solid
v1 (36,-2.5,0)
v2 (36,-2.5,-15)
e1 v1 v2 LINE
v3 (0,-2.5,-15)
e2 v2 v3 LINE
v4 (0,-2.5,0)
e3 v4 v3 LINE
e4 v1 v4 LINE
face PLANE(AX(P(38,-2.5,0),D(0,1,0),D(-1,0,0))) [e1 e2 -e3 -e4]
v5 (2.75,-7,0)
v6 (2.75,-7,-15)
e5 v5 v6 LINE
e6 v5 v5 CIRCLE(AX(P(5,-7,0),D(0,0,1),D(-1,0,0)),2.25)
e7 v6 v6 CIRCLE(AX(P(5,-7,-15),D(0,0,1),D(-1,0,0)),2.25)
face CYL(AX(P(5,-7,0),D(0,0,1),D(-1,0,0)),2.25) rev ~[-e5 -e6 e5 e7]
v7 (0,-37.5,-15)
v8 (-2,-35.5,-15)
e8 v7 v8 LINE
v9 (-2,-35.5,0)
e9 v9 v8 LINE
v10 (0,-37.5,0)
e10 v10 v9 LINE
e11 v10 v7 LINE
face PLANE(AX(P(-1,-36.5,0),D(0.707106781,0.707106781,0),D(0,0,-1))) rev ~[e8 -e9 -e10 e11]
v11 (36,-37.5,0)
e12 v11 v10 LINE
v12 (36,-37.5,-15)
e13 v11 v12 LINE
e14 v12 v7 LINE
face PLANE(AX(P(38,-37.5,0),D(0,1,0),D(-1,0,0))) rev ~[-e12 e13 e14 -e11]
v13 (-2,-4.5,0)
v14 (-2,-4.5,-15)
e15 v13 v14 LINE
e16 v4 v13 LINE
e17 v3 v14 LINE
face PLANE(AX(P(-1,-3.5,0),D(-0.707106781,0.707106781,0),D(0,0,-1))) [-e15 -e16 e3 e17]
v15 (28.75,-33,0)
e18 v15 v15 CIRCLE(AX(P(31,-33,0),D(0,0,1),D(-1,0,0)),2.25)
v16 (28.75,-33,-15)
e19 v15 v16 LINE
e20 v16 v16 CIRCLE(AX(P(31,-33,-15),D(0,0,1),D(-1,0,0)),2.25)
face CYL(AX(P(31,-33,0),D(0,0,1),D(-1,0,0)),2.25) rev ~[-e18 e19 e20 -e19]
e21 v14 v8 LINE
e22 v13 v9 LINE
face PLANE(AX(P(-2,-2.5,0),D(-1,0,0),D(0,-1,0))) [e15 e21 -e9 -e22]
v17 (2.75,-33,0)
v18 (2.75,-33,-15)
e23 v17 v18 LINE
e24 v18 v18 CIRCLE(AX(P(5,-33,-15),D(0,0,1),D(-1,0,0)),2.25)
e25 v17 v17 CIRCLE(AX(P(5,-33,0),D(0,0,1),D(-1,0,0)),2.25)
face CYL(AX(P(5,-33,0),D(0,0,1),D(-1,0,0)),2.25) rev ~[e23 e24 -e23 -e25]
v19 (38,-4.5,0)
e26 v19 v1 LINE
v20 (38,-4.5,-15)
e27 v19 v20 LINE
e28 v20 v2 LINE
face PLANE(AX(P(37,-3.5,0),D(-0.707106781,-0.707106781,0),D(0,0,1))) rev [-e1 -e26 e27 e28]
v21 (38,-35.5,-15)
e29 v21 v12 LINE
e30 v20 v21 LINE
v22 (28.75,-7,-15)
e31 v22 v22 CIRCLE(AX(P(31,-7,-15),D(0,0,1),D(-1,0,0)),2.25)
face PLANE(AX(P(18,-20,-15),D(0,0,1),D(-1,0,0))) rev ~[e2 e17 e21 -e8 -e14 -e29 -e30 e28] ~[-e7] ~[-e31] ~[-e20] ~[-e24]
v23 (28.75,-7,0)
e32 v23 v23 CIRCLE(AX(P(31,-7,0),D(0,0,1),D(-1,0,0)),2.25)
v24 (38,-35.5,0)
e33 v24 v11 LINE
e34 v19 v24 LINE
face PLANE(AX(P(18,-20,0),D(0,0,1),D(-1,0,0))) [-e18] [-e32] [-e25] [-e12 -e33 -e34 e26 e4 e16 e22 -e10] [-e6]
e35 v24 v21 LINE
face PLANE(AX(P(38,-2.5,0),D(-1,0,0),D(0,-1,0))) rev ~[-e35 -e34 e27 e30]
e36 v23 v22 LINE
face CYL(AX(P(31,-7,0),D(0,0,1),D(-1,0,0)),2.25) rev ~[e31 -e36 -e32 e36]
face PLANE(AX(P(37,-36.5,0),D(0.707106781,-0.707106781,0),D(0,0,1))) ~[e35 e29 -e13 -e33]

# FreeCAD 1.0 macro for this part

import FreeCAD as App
import Part
import Sketcher


def edges_at(feature, points):
    """Names of the edges that pass closest to the given points."""
    edges = feature.Shape.Edges
    near = lambda p: min(range(len(edges)), key=lambda i: edges[i].distToShape(Part.Vertex(*p))[0])
    return sorted({f"Edge{near(p) + 1}" for p in points})

doc = App.newDocument("Part")
body = doc.addObject("PartDesign::Body", "Body")

# Sketch on XY plane
sketch1 = doc.addObject("Sketcher::SketchObject", "Sketch")
body.addObject(sketch1)
sketch1.AttachmentSupport = (doc.XY_Plane, [""])
sketch1.MapMode = "FlatFace"
sketch1.addGeometry(Part.LineSegment(App.Vector(-20, 18, 0), App.Vector(-20, -18, 0)), False)
sketch1.addGeometry(Part.LineSegment(App.Vector(-20, -18, 0), App.Vector(20, -18, 0)), False)
sketch1.addGeometry(Part.LineSegment(App.Vector(20, -18, 0), App.Vector(20, 18, 0)), False)
sketch1.addGeometry(Part.LineSegment(App.Vector(20, 18, 0), App.Vector(-20, 18, 0)), False)
sketch1.addConstraint(Sketcher.Constraint("Coincident", 0, 2, 1, 1))
sketch1.addConstraint(Sketcher.Constraint("Coincident", 1, 2, 2, 1))
sketch1.addConstraint(Sketcher.Constraint("Coincident", 2, 2, 3, 1))
sketch1.addConstraint(Sketcher.Constraint("Coincident", 3, 2, 0, 1))
sketch1.addConstraint(Sketcher.Constraint("Vertical", 0))
sketch1.addConstraint(Sketcher.Constraint("Horizontal", 1))
sketch1.addConstraint(Sketcher.Constraint("Vertical", 2))
sketch1.addConstraint(Sketcher.Constraint("Horizontal", 3))
sketch1.addConstraint(Sketcher.Constraint("Symmetric", 0, 2, 2, 2, -1, 1))
sketch1.addConstraint(Sketcher.Constraint("DistanceX", 1, 1, 1, 2, 40.0))
sketch1.addConstraint(Sketcher.Constraint("DistanceY", 0, 2, 0, 1, 35.0))
pad1 = doc.addObject("PartDesign::Pad", "Pad")
body.addObject(pad1)
pad1.Profile = sketch1
pad1.Length = 15
pad1.Reversed = True

# Sketch on XY plane
sketch2 = doc.addObject("Sketcher::SketchObject", "Sketch001")
body.addObject(sketch2)
sketch2.AttachmentSupport = (doc.XY_Plane, [""])
sketch2.MapMode = "FlatFace"
sketch2.addGeometry(Part.Circle(App.Vector(-13, 13, 0), App.Vector(0, 0, 1), 2.2), False)
sketch2.addGeometry(Part.Circle(App.Vector(13, 13, 0), App.Vector(0, 0, 1), 2.2), False)
sketch2.addGeometry(Part.Circle(App.Vector(13, -13, 0), App.Vector(0, 0, 1), 2.2), False)
sketch2.addGeometry(Part.Circle(App.Vector(-13, -13, 0), App.Vector(0, 0, 1), 2.2), False)
sketch2.addConstraint(Sketcher.Constraint("Equal", 0, 1))
sketch2.addConstraint(Sketcher.Constraint("Equal", 1, 2))
sketch2.addConstraint(Sketcher.Constraint("Equal", 2, 3))
sketch2.addConstraint(Sketcher.Constraint("Symmetric", 0, 3, 2, 3, -1, 1))
sketch2.addConstraint(Sketcher.Constraint("Symmetric", 1, 3, 3, 3, -1, 1))
sketch2.addConstraint(Sketcher.Constraint("Symmetric", 0, 3, 1, 3, -2))
sketch2.addConstraint(Sketcher.Constraint("Diameter", 0, 4.5))
sketch2.addConstraint(Sketcher.Constraint("DistanceX", 0, 3, -1, 1, 13.0))
sketch2.addConstraint(Sketcher.Constraint("DistanceY", -1, 1, 0, 3, 13.0))
pocket1 = doc.addObject("PartDesign::Pocket", "Pocket")
body.addObject(pocket1)
pocket1.Profile = sketch2
pocket1.Length = 25
doc.recompute()

chamfer = doc.addObject("PartDesign::Chamfer", "Chamfer")
body.addObject(chamfer)
chamfer.Base = (pocket1, edges_at(pocket1, [
    (-20, -17.5, -7.5),
    (20, -17.5, -7.5),
    (-20, 17.5, -7.5),
    (20, 17.5, -7.5),
]))
chamfer.Size = 2
body2 = doc.addObject("PartDesign::Body", "Body001")
doc.recompute()

body.Placement = App.Placement(App.Vector(18, -20, 0), App.Rotation(App.Vector(0, 0, 1), 180))
boolean = doc.addObject("PartDesign::Boolean", "Boolean")
body2.addObject(boolean)
boolean.Type = "Fuse"
boolean.addObjects([body])

doc.recompute()
